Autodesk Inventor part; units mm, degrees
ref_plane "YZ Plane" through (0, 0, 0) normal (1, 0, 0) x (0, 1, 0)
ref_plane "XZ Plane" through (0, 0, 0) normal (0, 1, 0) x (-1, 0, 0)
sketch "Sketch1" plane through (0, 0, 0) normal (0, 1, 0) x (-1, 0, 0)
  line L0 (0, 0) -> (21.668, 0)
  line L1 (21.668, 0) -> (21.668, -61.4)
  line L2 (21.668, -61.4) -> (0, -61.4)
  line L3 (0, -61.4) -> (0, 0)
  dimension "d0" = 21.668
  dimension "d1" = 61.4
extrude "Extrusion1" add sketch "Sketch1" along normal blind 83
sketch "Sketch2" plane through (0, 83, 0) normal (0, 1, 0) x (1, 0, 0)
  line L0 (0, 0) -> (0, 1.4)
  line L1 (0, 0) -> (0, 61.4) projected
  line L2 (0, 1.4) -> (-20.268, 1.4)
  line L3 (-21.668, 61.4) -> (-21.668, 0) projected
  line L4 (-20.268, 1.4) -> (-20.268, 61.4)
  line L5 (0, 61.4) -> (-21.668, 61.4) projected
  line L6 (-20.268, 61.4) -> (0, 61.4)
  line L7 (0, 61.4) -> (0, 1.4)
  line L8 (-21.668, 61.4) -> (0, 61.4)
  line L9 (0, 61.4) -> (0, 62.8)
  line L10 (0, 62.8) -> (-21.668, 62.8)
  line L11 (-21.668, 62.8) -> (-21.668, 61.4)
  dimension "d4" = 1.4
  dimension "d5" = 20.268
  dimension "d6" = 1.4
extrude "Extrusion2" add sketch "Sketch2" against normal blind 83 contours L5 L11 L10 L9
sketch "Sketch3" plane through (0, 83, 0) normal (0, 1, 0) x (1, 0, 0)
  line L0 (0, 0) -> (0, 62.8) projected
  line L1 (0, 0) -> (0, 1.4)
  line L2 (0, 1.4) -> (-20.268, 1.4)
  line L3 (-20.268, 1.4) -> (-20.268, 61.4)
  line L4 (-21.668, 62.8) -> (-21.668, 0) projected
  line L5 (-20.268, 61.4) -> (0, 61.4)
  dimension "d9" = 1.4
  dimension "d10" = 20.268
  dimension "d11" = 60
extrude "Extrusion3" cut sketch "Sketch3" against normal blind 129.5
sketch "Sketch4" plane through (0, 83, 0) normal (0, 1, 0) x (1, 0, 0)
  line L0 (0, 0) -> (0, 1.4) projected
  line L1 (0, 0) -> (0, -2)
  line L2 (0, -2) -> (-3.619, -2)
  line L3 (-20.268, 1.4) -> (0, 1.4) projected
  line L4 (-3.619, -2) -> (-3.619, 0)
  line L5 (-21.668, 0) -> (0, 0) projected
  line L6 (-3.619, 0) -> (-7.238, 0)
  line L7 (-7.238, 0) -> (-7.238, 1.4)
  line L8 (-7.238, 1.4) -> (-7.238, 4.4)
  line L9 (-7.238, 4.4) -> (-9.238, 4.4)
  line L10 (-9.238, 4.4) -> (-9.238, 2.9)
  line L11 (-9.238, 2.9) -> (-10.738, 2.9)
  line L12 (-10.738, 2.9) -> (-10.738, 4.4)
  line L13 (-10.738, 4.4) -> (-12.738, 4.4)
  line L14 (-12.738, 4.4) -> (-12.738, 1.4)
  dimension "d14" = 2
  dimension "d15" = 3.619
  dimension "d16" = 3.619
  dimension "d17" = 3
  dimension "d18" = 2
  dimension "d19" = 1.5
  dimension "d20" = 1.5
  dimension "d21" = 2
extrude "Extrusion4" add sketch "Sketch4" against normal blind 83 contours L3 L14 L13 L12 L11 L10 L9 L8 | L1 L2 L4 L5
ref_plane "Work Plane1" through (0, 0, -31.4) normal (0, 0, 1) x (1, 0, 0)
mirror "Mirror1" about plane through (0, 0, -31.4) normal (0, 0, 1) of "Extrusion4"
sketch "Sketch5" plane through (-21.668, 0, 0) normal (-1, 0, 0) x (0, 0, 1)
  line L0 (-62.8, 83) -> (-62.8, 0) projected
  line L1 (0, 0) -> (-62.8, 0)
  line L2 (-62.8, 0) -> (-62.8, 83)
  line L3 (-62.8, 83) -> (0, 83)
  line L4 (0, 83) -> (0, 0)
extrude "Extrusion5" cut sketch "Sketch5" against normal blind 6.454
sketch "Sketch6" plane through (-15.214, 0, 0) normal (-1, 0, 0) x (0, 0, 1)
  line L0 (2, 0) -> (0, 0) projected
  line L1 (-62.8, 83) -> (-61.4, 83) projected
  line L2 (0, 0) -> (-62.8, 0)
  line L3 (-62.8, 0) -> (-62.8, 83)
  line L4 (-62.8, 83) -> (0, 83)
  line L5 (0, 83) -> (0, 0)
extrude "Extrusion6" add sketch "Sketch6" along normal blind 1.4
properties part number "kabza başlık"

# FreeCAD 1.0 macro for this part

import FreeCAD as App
import Part
import Sketcher


def add_polygon(sketch, points):
    """Adds a closed chain of lines whose ends are joined by coincident constraints."""
    first, n = sketch.GeometryCount, len(points)
    for a, b in zip(points, points[1:] + points[:1]):
        sketch.addGeometry(Part.LineSegment(App.Vector(*a, 0), App.Vector(*b, 0)), False)
    for i in range(n):
        sketch.addConstraint(Sketcher.Constraint("Coincident", first + i, 2, first + (i + 1) % n, 1))

doc = App.newDocument("Part")
params = doc.addObject("Spreadsheet::Sheet", "Params")
for row, (alias, value) in enumerate([
    ("sketch1_height", "61.4 mm"),
    ("pad1_length", "83 mm"),
    ("sketch2_height", "1.4 mm"),
    ("pad2_length", "83 mm"),
    ("sketch3_height", "60 mm"),
    ("pocket1_length", "129.5 mm"),
    ("sketch4_width", "2 mm"),
    ("sketch4_height", "3 mm"),
    ("sketch4_width2", "1.5 mm"),
    ("pad3_length", "83 mm"),
    ("sketch5_width", "83 mm"),
    ("sketch5_height", "62.8 mm"),
    ("pocket2_length", "6.454 mm"),
    ("sketch6_width", "83 mm"),
    ("sketch6_height", "62.8 mm"),
    ("pad4_length", "1.4 mm"),
], start=1):
    params.set(f"A{row}", alias)
    params.set(f"B{row}", "=" + value)
    params.setAlias(f"B{row}", alias)

body = doc.addObject("PartDesign::Body", "Body")
body.AllowCompound = True

# Sketch on XZ plane
sketch1 = body.newObject("Sketcher::SketchObject", "Sketch")
sketch1.AttachmentSupport = (doc.getObject("XZ_Plane"), [""])
sketch1.MapMode = "FlatFace"
add_polygon(sketch1, [(-22, 0), (0, 0), (0, -61), (-22, -61)])  # lines 0-3
sketch1.addConstraint(Sketcher.Constraint("Horizontal", 0))
sketch1.addConstraint(Sketcher.Constraint("Vertical", 1))
sketch1.addConstraint(Sketcher.Constraint("Horizontal", 2))
sketch1.addConstraint(Sketcher.Constraint("Vertical", 3))
sketch1.addConstraint(Sketcher.Constraint("Coincident", 0, 2, -1, 1))
sketch1.addConstraint(Sketcher.Constraint("DistanceY", 1, 2, 1, 1, 61.4))
sketch1.addConstraint(Sketcher.Constraint("DistanceX", 0, 1, 0, 2, 21.668))
sketch1.setExpression("Constraints[9]", "Params.sketch1_height")
pad1 = body.newObject("PartDesign::Pad", "Pad")
pad1.Profile = sketch1
pad1.setExpression("Length", "Params.pad1_length")
pad1.Reversed = True

# Sketch on XZ plane
sketch2 = body.newObject("Sketcher::SketchObject", "Sketch001")
sketch2.AttachmentSupport = (doc.getObject("XZ_Plane"), [""])
sketch2.MapMode = "FlatFace"
sketch2.AttachmentOffset = App.Placement(App.Vector(0, 0, -83), App.Rotation())
add_polygon(sketch2, [(-21.7, -61.4), (0, -61.4), (0, -62.8), (-21.7, -62.8)])  # lines 0-3
sketch2.addConstraint(Sketcher.Constraint("Horizontal", 0))
sketch2.addConstraint(Sketcher.Constraint("Vertical", 1))
sketch2.addConstraint(Sketcher.Constraint("Horizontal", 2))
sketch2.addConstraint(Sketcher.Constraint("Vertical", 3))
sketch2.addConstraint(Sketcher.Constraint("PointOnObject", 0, 2, -2))
sketch2.addConstraint(Sketcher.Constraint("DistanceY", 1, 2, 1, 1, 1.4))
sketch2.addConstraint(Sketcher.Constraint("DistanceY", 0, 2, -1, 1, 61.4))
sketch2.addConstraint(Sketcher.Constraint("DistanceX", 0, 1, 0, 2, 21.668))
sketch2.setExpression("Constraints[9]", "Params.sketch2_height")
pad2 = body.newObject("PartDesign::Pad", "Pad001")
pad2.Profile = sketch2
pad2.setExpression("Length", "Params.pad2_length")

# Sketch on XZ plane
sketch3 = body.newObject("Sketcher::SketchObject", "Sketch002")
sketch3.AttachmentSupport = (doc.getObject("XZ_Plane"), [""])
sketch3.MapMode = "FlatFace"
sketch3.AttachmentOffset = App.Placement(App.Vector(0, 0, -83), App.Rotation())
add_polygon(sketch3, [(-20, -1), (0, -1), (0, -61), (-20, -61)])  # lines 0-3
sketch3.addConstraint(Sketcher.Constraint("Horizontal", 0))
sketch3.addConstraint(Sketcher.Constraint("Vertical", 1))
sketch3.addConstraint(Sketcher.Constraint("Horizontal", 2))
sketch3.addConstraint(Sketcher.Constraint("Vertical", 3))
sketch3.addConstraint(Sketcher.Constraint("PointOnObject", 0, 2, -2))
sketch3.addConstraint(Sketcher.Constraint("DistanceY", 1, 2, 1, 1, 60.0))
sketch3.addConstraint(Sketcher.Constraint("DistanceY", 0, 2, -1, 1, 1.4))
sketch3.addConstraint(Sketcher.Constraint("DistanceX", 0, 1, 0, 2, 20.268))
sketch3.setExpression("Constraints[9]", "Params.sketch3_height")
pocket1 = body.newObject("PartDesign::Pocket", "Pocket")
pocket1.Profile = sketch3
pocket1.setExpression("Length", "Params.pocket1_length")
pocket1.Reversed = True

# Sketch on XZ plane
sketch4 = body.newObject("Sketcher::SketchObject", "Sketch003")
sketch4.AttachmentSupport = (doc.getObject("XZ_Plane"), [""])
sketch4.MapMode = "FlatFace"
sketch4.AttachmentOffset = App.Placement(App.Vector(0, 0, -83), App.Rotation())
add_polygon(sketch4, [(-12.7, -1.4), (-7.2, -1.4), (-7.2, -4.4), (-9.2, -4.4), (-9.2, -2.9), (-10.7, -2.9), (-10.7, -4.4), (-12.7, -4.4)])  # lines 0-7
add_polygon(sketch4, [(0, 2), (0, 0), (-3.6, 0), (-3.6, 2)])  # lines 8-11
sketch4.addConstraint(Sketcher.Constraint("Horizontal", 0))
sketch4.addConstraint(Sketcher.Constraint("Vertical", 1))
sketch4.addConstraint(Sketcher.Constraint("Horizontal", 2))
sketch4.addConstraint(Sketcher.Constraint("Vertical", 3))
sketch4.addConstraint(Sketcher.Constraint("Horizontal", 4))
sketch4.addConstraint(Sketcher.Constraint("Vertical", 5))
sketch4.addConstraint(Sketcher.Constraint("Horizontal", 6))
sketch4.addConstraint(Sketcher.Constraint("Vertical", 7))
sketch4.addConstraint(Sketcher.Constraint("Vertical", 8))
sketch4.addConstraint(Sketcher.Constraint("Horizontal", 9))
sketch4.addConstraint(Sketcher.Constraint("Vertical", 10))
sketch4.addConstraint(Sketcher.Constraint("Horizontal", 11))
sketch4.addConstraint(Sketcher.Constraint("Coincident", 8, 2, -1, 1))
sketch4.addConstraint(Sketcher.Constraint("Horizontal", 2, 2, 5, 2))
sketch4.addConstraint(Sketcher.Constraint("Equal", 2, 6))
sketch4.addConstraint(Sketcher.Constraint("Equal", 4, 3))
sketch4.addConstraint(Sketcher.Constraint("Equal", 6, 8))
sketch4.addConstraint(Sketcher.Constraint("DistanceX", 2, 2, 2, 1, 2.0))
sketch4.addConstraint(Sketcher.Constraint("DistanceY", 1, 2, 1, 1, 3.0))
sketch4.addConstraint(Sketcher.Constraint("DistanceX", 4, 2, 4, 1, 1.5))
sketch4.addConstraint(Sketcher.Constraint("DistanceX", 9, 2, 9, 1, 3.619))
sketch4.addConstraint(Sketcher.Constraint("DistanceX", 0, 2, 9, 2, 3.619))
sketch4.addConstraint(Sketcher.Constraint("DistanceY", 0, 2, -1, 1, 1.4))
sketch4.setExpression("Constraints[29]", "Params.sketch4_width")
sketch4.setExpression("Constraints[30]", "Params.sketch4_height")
sketch4.setExpression("Constraints[31]", "Params.sketch4_width2")
pad3 = body.newObject("PartDesign::Pad", "Pad002")
pad3.Profile = sketch4
pad3.setExpression("Length", "Params.pad3_length")
doc.recompute()

datumplane = body.newObject("PartDesign::Plane", "DatumPlane")
datumplane.AttachmentSupport = (doc.getObject("XY_Plane"), [""])
datumplane.MapMode = "FlatFace"
datumplane.AttachmentOffset = App.Placement(App.Vector(0, 0, -31.4), App.Rotation())
mirrored = body.newObject("PartDesign::Mirrored", "Mirrored")
mirrored.Originals = [pad3]
mirrored.MirrorPlane = (datumplane, [""])
body.Tip = mirrored

# Sketch on YZ plane
sketch5 = body.newObject("Sketcher::SketchObject", "Sketch004")
sketch5.AttachmentSupport = (doc.getObject("YZ_Plane"), [""])
sketch5.MapMode = "FlatFace"
sketch5.AttachmentOffset = App.Placement(App.Vector(0, 0, -21.668), App.Rotation())
add_polygon(sketch5, [(83, 0), (83, -63), (0, -63), (0, 0)])  # lines 0-3
sketch5.addConstraint(Sketcher.Constraint("Vertical", 0))
sketch5.addConstraint(Sketcher.Constraint("Horizontal", 1))
sketch5.addConstraint(Sketcher.Constraint("Vertical", 2))
sketch5.addConstraint(Sketcher.Constraint("Horizontal", 3))
sketch5.addConstraint(Sketcher.Constraint("Coincident", 2, 2, -1, 1))
sketch5.addConstraint(Sketcher.Constraint("DistanceX", 1, 2, 1, 1, 83.0))
sketch5.addConstraint(Sketcher.Constraint("DistanceY", 0, 2, 0, 1, 62.8))
sketch5.setExpression("Constraints[9]", "Params.sketch5_width")
sketch5.setExpression("Constraints[10]", "Params.sketch5_height")
pocket2 = body.newObject("PartDesign::Pocket", "Pocket001")
pocket2.Profile = sketch5
pocket2.setExpression("Length", "Params.pocket2_length")
pocket2.Reversed = True

# Sketch on YZ plane
sketch6 = body.newObject("Sketcher::SketchObject", "Sketch005")
sketch6.AttachmentSupport = (doc.getObject("YZ_Plane"), [""])
sketch6.MapMode = "FlatFace"
sketch6.AttachmentOffset = App.Placement(App.Vector(0, 0, -15.214), App.Rotation())
add_polygon(sketch6, [(83, 0), (83, -63), (0, -63), (0, 0)])  # lines 0-3
sketch6.addConstraint(Sketcher.Constraint("Vertical", 0))
sketch6.addConstraint(Sketcher.Constraint("Horizontal", 1))
sketch6.addConstraint(Sketcher.Constraint("Vertical", 2))
sketch6.addConstraint(Sketcher.Constraint("Horizontal", 3))
sketch6.addConstraint(Sketcher.Constraint("Coincident", 2, 2, -1, 1))
sketch6.addConstraint(Sketcher.Constraint("DistanceX", 1, 2, 1, 1, 83.0))
sketch6.addConstraint(Sketcher.Constraint("DistanceY", 0, 2, 0, 1, 62.8))
sketch6.setExpression("Constraints[9]", "Params.sketch6_width")
sketch6.setExpression("Constraints[10]", "Params.sketch6_height")
pad4 = body.newObject("PartDesign::Pad", "Pad003")
pad4.Profile = sketch6
pad4.setExpression("Length", "Params.pad4_length")
pad4.Reversed = True

doc.recompute()
